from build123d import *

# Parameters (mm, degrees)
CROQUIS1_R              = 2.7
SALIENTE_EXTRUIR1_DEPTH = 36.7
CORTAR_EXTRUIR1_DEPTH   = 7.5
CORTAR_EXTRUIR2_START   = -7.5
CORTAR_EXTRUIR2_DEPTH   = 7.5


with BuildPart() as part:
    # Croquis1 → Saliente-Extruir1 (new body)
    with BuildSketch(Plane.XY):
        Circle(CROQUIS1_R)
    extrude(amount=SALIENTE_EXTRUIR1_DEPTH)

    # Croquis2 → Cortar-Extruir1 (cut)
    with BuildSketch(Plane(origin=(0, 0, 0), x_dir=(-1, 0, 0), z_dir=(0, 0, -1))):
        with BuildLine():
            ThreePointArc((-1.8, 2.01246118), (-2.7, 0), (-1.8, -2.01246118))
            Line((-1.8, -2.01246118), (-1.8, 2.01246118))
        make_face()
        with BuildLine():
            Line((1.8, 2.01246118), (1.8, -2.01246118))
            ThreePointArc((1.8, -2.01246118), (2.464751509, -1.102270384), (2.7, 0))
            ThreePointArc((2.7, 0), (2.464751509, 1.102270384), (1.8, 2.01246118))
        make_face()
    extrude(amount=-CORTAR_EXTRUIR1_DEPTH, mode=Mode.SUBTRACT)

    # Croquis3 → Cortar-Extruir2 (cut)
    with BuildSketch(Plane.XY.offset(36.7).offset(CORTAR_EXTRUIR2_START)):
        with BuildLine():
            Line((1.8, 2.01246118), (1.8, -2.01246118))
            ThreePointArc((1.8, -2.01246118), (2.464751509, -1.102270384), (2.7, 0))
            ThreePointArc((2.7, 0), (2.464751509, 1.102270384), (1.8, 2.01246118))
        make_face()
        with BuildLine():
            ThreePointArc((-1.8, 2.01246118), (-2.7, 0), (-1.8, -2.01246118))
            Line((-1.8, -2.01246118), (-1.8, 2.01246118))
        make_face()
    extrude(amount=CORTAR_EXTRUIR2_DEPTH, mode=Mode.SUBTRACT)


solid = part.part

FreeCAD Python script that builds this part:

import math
import FreeCAD as App
import Part
import Sketcher
from FreeCAD import Vector
Q = App.Units.Quantity

doc = App.newDocument("Part")
body = doc.addObject("PartDesign::Body", "Body")

# Sketch on XY plane
sketch1 = doc.addObject("Sketcher::SketchObject", "Sketch")
body.addObject(sketch1)
sketch1.AttachmentSupport = (doc.XY_Plane, [""])
sketch1.MapMode = "FlatFace"
sketch1.addGeometry(Part.Circle(Vector(0, 0, 0), Vector(0, 0, 1), 2.7), False)
sketch1.addConstraint(Sketcher.Constraint("Coincident", 0, 3, -1, 1))
sketch1.addConstraint(Sketcher.Constraint("Diameter", 0, Q("5.4 mm")))
pad1 = doc.addObject("PartDesign::Pad", "Pad")
body.addObject(pad1)
pad1.Profile = sketch1
pad1.Length = 36.7

# Sketch on XY plane
sketch2 = doc.addObject("Sketcher::SketchObject", "Sketch001")
body.addObject(sketch2)
sketch2.AttachmentSupport = (doc.XY_Plane, [""])
sketch2.MapMode = "FlatFace"
sketch2.addGeometry(Part.ArcOfCircle(Part.Circle(Vector(0, 0, 0), Vector(0, 0, 1), 2.7), math.radians(-48), math.radians(48)), False)
sketch2.addGeometry(Part.LineSegment(Vector(1.8, -2, 0), Vector(1.8, 2, 0)), False)
sketch2.addGeometry(Part.LineSegment(Vector(-1.8, 2, 0), Vector(-1.8, -2, 0)), False)
sketch2.addGeometry(Part.ArcOfCircle(Part.Circle(Vector(0, 0, 0), Vector(0, 0, 1), 2.7), math.radians(180), math.radians(228)), False)
sketch2.addGeometry(Part.ArcOfCircle(Part.Circle(Vector(0, 0, 0), Vector(0, 0, 1), 2.7), math.radians(132), math.radians(180)), False)
sketch2.addConstraint(Sketcher.Constraint("Coincident", 0, 1, 1, 1))
sketch2.addConstraint(Sketcher.Constraint("Coincident", 1, 2, 0, 2))
sketch2.addConstraint(Sketcher.Constraint("Coincident", 2, 2, 3, 2))
sketch2.addConstraint(Sketcher.Constraint("Tangent", 3, 1, 4, 2))
sketch2.addConstraint(Sketcher.Constraint("Coincident", 4, 1, 2, 1))
sketch2.addConstraint(Sketcher.Constraint("Vertical", 1))
sketch2.addConstraint(Sketcher.Constraint("Vertical", 2))
sketch2.addConstraint(Sketcher.Constraint("Coincident", 0, 3, -1, 1))
sketch2.addConstraint(Sketcher.Constraint("Coincident", 3, 3, -1, 1))
sketch2.addConstraint(Sketcher.Constraint("Equal", 0, 3))
sketch2.addConstraint(Sketcher.Constraint("Equal", 3, 4))
sketch2.addConstraint(Sketcher.Constraint("PointOnObject", 3, 1, -1))
sketch2.addConstraint(Sketcher.Constraint("Horizontal", 0, 1, 2, 2))
sketch2.addConstraint(Sketcher.Constraint("Radius", 0, Q("2.7 mm")))
sketch2.addConstraint(Sketcher.Constraint("DistanceX", -1, 1, 0, 1, Q("1.8 mm")))
pocket1 = doc.addObject("PartDesign::Pocket", "Pocket")
body.addObject(pocket1)
pocket1.Profile = sketch2
pocket1.Length = 7.5
pocket1.Reversed = True

# Sketch on XY plane
sketch3 = doc.addObject("Sketcher::SketchObject", "Sketch002")
body.addObject(sketch3)
sketch3.AttachmentSupport = (doc.XY_Plane, [""])
sketch3.MapMode = "FlatFace"
sketch3.AttachmentOffset = App.Placement(Vector(0, 0, 29.2), App.Rotation())
sketch3.addGeometry(Part.LineSegment(Vector(1.8, 2, 0), Vector(1.8, -2, 0)), False)
sketch3.addGeometry(Part.ArcOfCircle(Part.Circle(Vector(0, 0, 0), Vector(0, 0, 1), 2.7), math.radians(-48), math.radians(0)), False)
sketch3.addGeometry(Part.ArcOfCircle(Part.Circle(Vector(0, 0, 0), Vector(0, 0, 1), 2.7), math.radians(0), math.radians(48)), False)
sketch3.addGeometry(Part.ArcOfCircle(Part.Circle(Vector(0, 0, 0), Vector(0, 0, 1), 2.7), math.radians(132), math.radians(228)), False)
sketch3.addGeometry(Part.LineSegment(Vector(-1.8, -2, 0), Vector(-1.8, 2, 0)), False)
sketch3.addConstraint(Sketcher.Constraint("Coincident", 0, 2, 1, 1))
sketch3.addConstraint(Sketcher.Constraint("Tangent", 1, 2, 2, 1))
sketch3.addConstraint(Sketcher.Constraint("Coincident", 2, 2, 0, 1))
sketch3.addConstraint(Sketcher.Constraint("Coincident", 3, 1, 4, 2))
sketch3.addConstraint(Sketcher.Constraint("Coincident", 4, 1, 3, 2))
sketch3.addConstraint(Sketcher.Constraint("Vertical", 0))
sketch3.addConstraint(Sketcher.Constraint("Vertical", 4))
sketch3.addConstraint(Sketcher.Constraint("Coincident", 1, 3, -1, 1))
sketch3.addConstraint(Sketcher.Constraint("Coincident", 3, 3, -1, 1))
sketch3.addConstraint(Sketcher.Constraint("Equal", 1, 2))
sketch3.addConstraint(Sketcher.Constraint("Equal", 2, 3))
sketch3.addConstraint(Sketcher.Constraint("PointOnObject", 1, 2, -1))
sketch3.addConstraint(Sketcher.Constraint("Horizontal", 2, 2, 3, 1))
sketch3.addConstraint(Sketcher.Constraint("Radius", 1, Q("2.7 mm")))
sketch3.addConstraint(Sketcher.Constraint("DistanceX", -1, 1, 0, 2, Q("1.8 mm")))
pocket2 = doc.addObject("PartDesign::Pocket", "Pocket001")
body.addObject(pocket2)
pocket2.Profile = sketch3
pocket2.Length = 7.5
pocket2.Reversed = True

doc.recompute()
